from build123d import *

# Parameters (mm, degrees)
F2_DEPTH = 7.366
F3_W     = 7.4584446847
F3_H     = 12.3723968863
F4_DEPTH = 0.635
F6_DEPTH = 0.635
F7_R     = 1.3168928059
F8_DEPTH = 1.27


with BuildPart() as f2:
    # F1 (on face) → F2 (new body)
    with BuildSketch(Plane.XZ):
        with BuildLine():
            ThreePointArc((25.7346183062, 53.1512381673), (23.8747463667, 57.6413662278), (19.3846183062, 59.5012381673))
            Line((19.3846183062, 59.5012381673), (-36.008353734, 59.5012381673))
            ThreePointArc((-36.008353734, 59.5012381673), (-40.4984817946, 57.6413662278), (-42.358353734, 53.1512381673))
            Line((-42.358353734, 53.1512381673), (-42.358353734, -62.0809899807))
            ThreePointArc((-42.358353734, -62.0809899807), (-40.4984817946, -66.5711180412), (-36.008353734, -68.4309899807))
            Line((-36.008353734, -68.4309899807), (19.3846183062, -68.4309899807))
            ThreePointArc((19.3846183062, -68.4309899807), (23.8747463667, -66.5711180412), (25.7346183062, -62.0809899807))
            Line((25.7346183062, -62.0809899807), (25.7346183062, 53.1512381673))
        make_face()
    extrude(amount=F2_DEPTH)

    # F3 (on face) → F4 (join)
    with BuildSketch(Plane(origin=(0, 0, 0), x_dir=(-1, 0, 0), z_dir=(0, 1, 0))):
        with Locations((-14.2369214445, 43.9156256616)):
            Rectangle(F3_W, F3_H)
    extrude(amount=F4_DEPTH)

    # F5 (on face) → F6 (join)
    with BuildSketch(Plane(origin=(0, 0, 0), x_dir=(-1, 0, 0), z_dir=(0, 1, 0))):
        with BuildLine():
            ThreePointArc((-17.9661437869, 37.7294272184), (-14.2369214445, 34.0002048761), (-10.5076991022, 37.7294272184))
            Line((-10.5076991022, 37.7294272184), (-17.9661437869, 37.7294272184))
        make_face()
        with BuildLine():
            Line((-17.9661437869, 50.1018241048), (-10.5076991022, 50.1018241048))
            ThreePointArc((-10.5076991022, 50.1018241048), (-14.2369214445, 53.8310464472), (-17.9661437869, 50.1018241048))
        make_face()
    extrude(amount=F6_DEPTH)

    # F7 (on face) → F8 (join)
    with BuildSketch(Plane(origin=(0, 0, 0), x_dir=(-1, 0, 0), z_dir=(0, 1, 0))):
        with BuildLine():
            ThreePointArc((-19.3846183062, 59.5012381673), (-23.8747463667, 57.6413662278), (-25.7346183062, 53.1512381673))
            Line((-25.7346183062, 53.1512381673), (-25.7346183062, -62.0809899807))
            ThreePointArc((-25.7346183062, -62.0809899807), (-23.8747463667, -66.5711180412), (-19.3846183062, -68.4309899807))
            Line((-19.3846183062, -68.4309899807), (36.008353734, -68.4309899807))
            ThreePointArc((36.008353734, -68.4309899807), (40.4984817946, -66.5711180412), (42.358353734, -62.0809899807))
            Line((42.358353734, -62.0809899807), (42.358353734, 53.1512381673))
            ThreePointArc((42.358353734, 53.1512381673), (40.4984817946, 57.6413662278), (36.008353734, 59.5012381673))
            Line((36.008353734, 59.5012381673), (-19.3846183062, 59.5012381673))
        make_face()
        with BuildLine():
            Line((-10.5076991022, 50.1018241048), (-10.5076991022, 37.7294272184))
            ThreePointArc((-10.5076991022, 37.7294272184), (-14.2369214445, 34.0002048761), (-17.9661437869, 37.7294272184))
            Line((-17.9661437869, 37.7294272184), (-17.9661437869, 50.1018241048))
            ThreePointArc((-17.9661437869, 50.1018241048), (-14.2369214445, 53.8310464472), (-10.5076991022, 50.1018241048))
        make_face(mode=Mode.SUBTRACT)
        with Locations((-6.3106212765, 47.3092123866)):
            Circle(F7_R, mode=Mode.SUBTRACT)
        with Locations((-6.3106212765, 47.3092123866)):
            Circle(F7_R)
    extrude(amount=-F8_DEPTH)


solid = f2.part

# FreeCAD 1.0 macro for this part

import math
import FreeCAD as App
import Part
import Sketcher

V = App.Vector
Q = App.Units.Quantity


def add_polygon(sketch, points):
    """Adds a closed chain of lines whose ends are joined by coincident constraints."""
    first, n = sketch.GeometryCount, len(points)
    for a, b in zip(points, points[1:] + points[:1]):
        sketch.addGeometry(Part.LineSegment(App.Vector(*a, 0), App.Vector(*b, 0)), False)
    for i in range(n):
        sketch.addConstraint(Sketcher.Constraint("Coincident", first + i, 2, first + (i + 1) % n, 1))

doc = App.newDocument("Part")
params = doc.addObject("Spreadsheet::Sheet", "Params")
for row, (alias, value) in enumerate([
    ("sketch1_radius", "0.25 in"),
    ("pad1_length", "0.29 in"),
    ("pad2_length", "0.025 in"),
    ("pad3_length", "0.025 in"),
    ("sketch4_radius", "0.25 in"),
    ("pad4_length", "0.05 in"),
], start=1):
    params.set(f"A{row}", alias)
    params.set(f"B{row}", "=" + value)
    params.setAlias(f"B{row}", alias)

body = doc.addObject("PartDesign::Body", "Body")

sketch1 = body.newObject("Sketcher::SketchObject", "Sketch")
sketch1.AttachmentSupport = (doc.getObject("XZ_Plane"), [""])
sketch1.MapMode = "FlatFace"
sketch1.addGeometry(Part.ArcOfCircle(Part.Circle(V(19, 53, 0), V(0, 0, 1), 6), math.radians(0), math.radians(90)), False)
sketch1.addGeometry(Part.LineSegment(V(19, 60, 0), V(-36, 60, 0)), False)
sketch1.addGeometry(Part.ArcOfCircle(Part.Circle(V(-36, 53, 0), V(0, 0, 1), 6), math.radians(90), math.radians(180)), False)
sketch1.addGeometry(Part.LineSegment(V(-42, 53, 0), V(-42, -62, 0)), False)
sketch1.addGeometry(Part.ArcOfCircle(Part.Circle(V(-36, -62, 0), V(0, 0, 1), 6), math.radians(180), math.radians(270)), False)
sketch1.addGeometry(Part.LineSegment(V(-36, -68, 0), V(19, -68, 0)), False)
sketch1.addGeometry(Part.ArcOfCircle(Part.Circle(V(19, -62, 0), V(0, 0, 1), 6), math.radians(-90), math.radians(0)), False)
sketch1.addGeometry(Part.LineSegment(V(26, -62, 0), V(26, 53, 0)), False)
sketch1.addConstraint(Sketcher.Constraint("Tangent", 0, 2, 1, 1))
sketch1.addConstraint(Sketcher.Constraint("Tangent", 1, 2, 2, 1))
sketch1.addConstraint(Sketcher.Constraint("Tangent", 2, 2, 3, 1))
sketch1.addConstraint(Sketcher.Constraint("Tangent", 3, 2, 4, 1))
sketch1.addConstraint(Sketcher.Constraint("Tangent", 4, 2, 5, 1))
sketch1.addConstraint(Sketcher.Constraint("Tangent", 5, 2, 6, 1))
sketch1.addConstraint(Sketcher.Constraint("Tangent", 6, 2, 7, 1))
sketch1.addConstraint(Sketcher.Constraint("Tangent", 7, 2, 0, 1))
sketch1.addConstraint(Sketcher.Constraint("Horizontal", 1))
sketch1.addConstraint(Sketcher.Constraint("Vertical", 3))
sketch1.addConstraint(Sketcher.Constraint("Horizontal", 5))
sketch1.addConstraint(Sketcher.Constraint("Vertical", 7))
sketch1.addConstraint(Sketcher.Constraint("Equal", 0, 2))
sketch1.addConstraint(Sketcher.Constraint("Equal", 2, 4))
sketch1.addConstraint(Sketcher.Constraint("Equal", 4, 6))
sketch1.addConstraint(Sketcher.Constraint("Radius", 0, Q("0.25 in")))
sketch1.addConstraint(Sketcher.Constraint("DistanceY", 3, 2, 3, 1, Q("115.232228 mm")))
sketch1.addConstraint(Sketcher.Constraint("DistanceX", 1, 2, 1, 1, Q("55.392972 mm")))
sketch1.addConstraint(Sketcher.Constraint("DistanceX", -1, 1, 0, 3, Q("19.384618 mm")))
sketch1.addConstraint(Sketcher.Constraint("DistanceY", -1, 1, 0, 3, Q("53.151238 mm")))
sketch1.setExpression("Constraints[15]", "Params.sketch1_radius")
pad1 = body.newObject("PartDesign::Pad", "Pad")
pad1.Profile = sketch1
pad1.setExpression("Length", "Params.pad1_length")

sketch2 = body.newObject("Sketcher::SketchObject", "Sketch001")
sketch2.AttachmentSupport = (doc.getObject("XZ_Plane"), [""])
sketch2.MapMode = "FlatFace"
add_polygon(sketch2, [(18, 50), (18, 38), (11, 38), (11, 50)])
sketch2.addConstraint(Sketcher.Constraint("Vertical", 0))
sketch2.addConstraint(Sketcher.Constraint("Horizontal", 1))
sketch2.addConstraint(Sketcher.Constraint("Vertical", 2))
sketch2.addConstraint(Sketcher.Constraint("Horizontal", 3))
sketch2.addConstraint(Sketcher.Constraint("DistanceX", -1, 1, 1, 2, Q("10.507699 mm")))
sketch2.addConstraint(Sketcher.Constraint("DistanceX", 1, 2, 1, 1, Q("7.458445 mm")))
sketch2.addConstraint(Sketcher.Constraint("DistanceY", 0, 2, 0, 1, Q("12.372397 mm")))
sketch2.addConstraint(Sketcher.Constraint("DistanceY", -1, 1, 0, 2, Q("37.729427 mm")))
pad2 = body.newObject("PartDesign::Pad", "Pad001")
pad2.Profile = sketch2
pad2.setExpression("Length", "Params.pad2_length")
pad2.Reversed = True

sketch3 = body.newObject("Sketcher::SketchObject", "Sketch002")
sketch3.AttachmentSupport = (doc.getObject("XZ_Plane"), [""])
sketch3.MapMode = "FlatFace"
sketch3.addGeometry(Part.ArcOfCircle(Part.Circle(V(14.2, 37.7, 0), V(0, 0, 1), 3.7), math.radians(180), math.radians(360)), False)
sketch3.addGeometry(Part.LineSegment(V(10.5, 37.7, 0), V(18, 37.7, 0)), False)
sketch3.addGeometry(Part.LineSegment(V(18, 50.1, 0), V(10.5, 50.1, 0)), False)
sketch3.addGeometry(Part.ArcOfCircle(Part.Circle(V(14.2, 50.1, 0), V(0, 0, 1), 3.7), math.radians(0), math.radians(180)), False)
sketch3.addConstraint(Sketcher.Constraint("Coincident", 0, 1, 1, 1))
sketch3.addConstraint(Sketcher.Constraint("Coincident", 1, 2, 0, 2))
sketch3.addConstraint(Sketcher.Constraint("Coincident", 2, 1, 3, 1))
sketch3.addConstraint(Sketcher.Constraint("Coincident", 3, 2, 2, 2))
sketch3.addConstraint(Sketcher.Constraint("Horizontal", 1))
sketch3.addConstraint(Sketcher.Constraint("Horizontal", 2))
sketch3.addConstraint(Sketcher.Constraint("Equal", 0, 3))
sketch3.addConstraint(Sketcher.Constraint("Horizontal", 3, 3, 2, 1))
sketch3.addConstraint(Sketcher.Constraint("Vertical", 0, 3, 3, 3))
sketch3.addConstraint(Sketcher.Constraint("Radius", 0, Q("3.729222 mm")))
sketch3.addConstraint(Sketcher.Constraint("DistanceX", -1, 1, 0, 1, Q("10.507699 mm")))
sketch3.addConstraint(Sketcher.Constraint("DistanceY", -1, 1, 0, 3, Q("37.729427 mm")))
sketch3.addConstraint(Sketcher.Constraint("DistanceY", -1, 1, 3, 3, Q("50.101824 mm")))
sketch3.addConstraint(Sketcher.Constraint("DistanceY", -1, 1, 0, 1, Q("37.729427 mm")))
pad3 = body.newObject("PartDesign::Pad", "Pad002")
pad3.Profile = sketch3
pad3.setExpression("Length", "Params.pad3_length")
pad3.Reversed = True

sketch4 = body.newObject("Sketcher::SketchObject", "Sketch003")
sketch4.AttachmentSupport = (doc.getObject("XZ_Plane"), [""])
sketch4.MapMode = "FlatFace"
sketch4.addGeometry(Part.ArcOfCircle(Part.Circle(V(19.4, 53.2, 0), V(0, 0, 1), 6.3), math.radians(0), math.radians(90)), False)
sketch4.addGeometry(Part.LineSegment(V(25.7, 53.2, 0), V(25.7, -62.1, 0)), False)
sketch4.addGeometry(Part.ArcOfCircle(Part.Circle(V(19.4, -62.1, 0), V(0, 0, 1), 6.3), math.radians(-90), math.radians(0)), False)
sketch4.addGeometry(Part.LineSegment(V(19.4, -68.4, 0), V(-36, -68.4, 0)), False)
sketch4.addGeometry(Part.ArcOfCircle(Part.Circle(V(-36, -62.1, 0), V(0, 0, 1), 6.3), math.radians(180), math.radians(270)), False)
sketch4.addGeometry(Part.LineSegment(V(-42.4, -62.1, 0), V(-42.4, 53.2, 0)), False)
sketch4.addGeometry(Part.ArcOfCircle(Part.Circle(V(-36, 53.2, 0), V(0, 0, 1), 6.3), math.radians(90), math.radians(180)), False)
sketch4.addGeometry(Part.LineSegment(V(-36, 59.5, 0), V(19.4, 59.5, 0)), False)
sketch4.addGeometry(Part.ArcOfCircle(Part.Circle(V(14.2, 50.1, 0), V(0, 0, 1), 3.7), math.radians(0), math.radians(180)), False)
sketch4.addGeometry(Part.LineSegment(V(10.5, 50.1, 0), V(10.5, 37.7, 0)), False)
sketch4.addGeometry(Part.ArcOfCircle(Part.Circle(V(14.2, 37.7, 0), V(0, 0, 1), 3.7), math.radians(180), math.radians(360)), False)
sketch4.addGeometry(Part.LineSegment(V(18, 37.7, 0), V(18, 50.1, 0)), False)
sketch4.addConstraint(Sketcher.Constraint("Tangent", 0, 1, 1, 1))
sketch4.addConstraint(Sketcher.Constraint("Tangent", 1, 2, 2, 2))
sketch4.addConstraint(Sketcher.Constraint("Tangent", 2, 1, 3, 1))
sketch4.addConstraint(Sketcher.Constraint("Tangent", 3, 2, 4, 2))
sketch4.addConstraint(Sketcher.Constraint("Tangent", 4, 1, 5, 1))
sketch4.addConstraint(Sketcher.Constraint("Tangent", 5, 2, 6, 2))
sketch4.addConstraint(Sketcher.Constraint("Tangent", 6, 1, 7, 1))
sketch4.addConstraint(Sketcher.Constraint("Tangent", 7, 2, 0, 2))
sketch4.addConstraint(Sketcher.Constraint("Tangent", 8, 2, 9, 1))
sketch4.addConstraint(Sketcher.Constraint("Tangent", 9, 2, 10, 1))
sketch4.addConstraint(Sketcher.Constraint("Tangent", 10, 2, 11, 1))
sketch4.addConstraint(Sketcher.Constraint("Tangent", 11, 2, 8, 1))
sketch4.addConstraint(Sketcher.Constraint("Vertical", 1))
sketch4.addConstraint(Sketcher.Constraint("Horizontal", 3))
sketch4.addConstraint(Sketcher.Constraint("Vertical", 5))
sketch4.addConstraint(Sketcher.Constraint("Horizontal", 7))
sketch4.addConstraint(Sketcher.Constraint("Vertical", 9))
sketch4.addConstraint(Sketcher.Constraint("Vertical", 11))
sketch4.addConstraint(Sketcher.Constraint("Equal", 0, 2))
sketch4.addConstraint(Sketcher.Constraint("Equal", 2, 4))
sketch4.addConstraint(Sketcher.Constraint("Equal", 4, 6))
sketch4.addConstraint(Sketcher.Constraint("Radius", 0, Q("0.25 in")))
sketch4.addConstraint(Sketcher.Constraint("Radius", 8, Q("3.729222 mm")))
sketch4.addConstraint(Sketcher.Constraint("DistanceY", 1, 2, 1, 1, Q("115.232228 mm")))
sketch4.addConstraint(Sketcher.Constraint("DistanceX", -1, 1, 8, 2, Q("10.507699 mm")))
sketch4.addConstraint(Sketcher.Constraint("DistanceX", 3, 2, 3, 1, Q("55.392972 mm")))
sketch4.addConstraint(Sketcher.Constraint("DistanceY", 9, 2, 9, 1, Q("12.372397 mm")))
sketch4.addConstraint(Sketcher.Constraint("DistanceX", -1, 1, 0, 3, Q("19.384618 mm")))
sketch4.addConstraint(Sketcher.Constraint("DistanceY", -1, 1, 0, 3, Q("53.151238 mm")))
sketch4.addConstraint(Sketcher.Constraint("DistanceY", 10, 3, 0, 3, Q("15.421811 mm")))
sketch4.setExpression("Constraints[21]", "Params.sketch4_radius")
pad4 = body.newObject("PartDesign::Pad", "Pad003")
pad4.Profile = sketch4
pad4.setExpression("Length", "Params.pad4_length")

doc.recompute()
